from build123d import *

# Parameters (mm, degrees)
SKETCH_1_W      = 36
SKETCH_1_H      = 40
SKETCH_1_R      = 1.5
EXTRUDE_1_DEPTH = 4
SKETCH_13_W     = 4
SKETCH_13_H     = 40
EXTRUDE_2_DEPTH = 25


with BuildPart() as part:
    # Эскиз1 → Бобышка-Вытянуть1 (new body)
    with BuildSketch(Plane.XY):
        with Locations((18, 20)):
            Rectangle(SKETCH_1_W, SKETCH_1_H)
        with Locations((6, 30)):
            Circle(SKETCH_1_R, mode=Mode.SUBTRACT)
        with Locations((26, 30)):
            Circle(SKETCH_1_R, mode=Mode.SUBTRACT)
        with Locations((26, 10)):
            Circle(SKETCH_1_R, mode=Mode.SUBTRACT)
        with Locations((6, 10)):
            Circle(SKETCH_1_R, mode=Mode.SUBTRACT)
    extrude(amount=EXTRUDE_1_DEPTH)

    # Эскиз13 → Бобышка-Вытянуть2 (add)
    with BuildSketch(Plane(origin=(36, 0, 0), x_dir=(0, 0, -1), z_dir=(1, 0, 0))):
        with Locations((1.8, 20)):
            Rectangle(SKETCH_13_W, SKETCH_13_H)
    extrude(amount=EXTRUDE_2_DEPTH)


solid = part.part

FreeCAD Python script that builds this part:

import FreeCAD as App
import Part
import Sketcher
from FreeCAD import Vector
Q = App.Units.Quantity

doc = App.newDocument("Part")
body = doc.addObject("PartDesign::Body", "Body")

sketch1 = doc.addObject("Sketcher::SketchObject", "Sketch")
body.addObject(sketch1)
sketch1.AttachmentSupport = (doc.XY_Plane, [""])
sketch1.MapMode = "FlatFace"
sketch1.addGeometry([
    Part.LineSegment(Vector(0, 40, 0), Vector(0, 0, 0)),
    Part.LineSegment(Vector(0, 0, 0), Vector(36, 0, 0)),
    Part.LineSegment(Vector(36, 0, 0), Vector(36, 40, 0)),
    Part.LineSegment(Vector(36, 40, 0), Vector(0, 40, 0)),
    Part.Circle(Vector(6, 10, 0), Vector(0, 0, 1), 1.5),
    Part.Circle(Vector(26, 10, 0), Vector(0, 0, 1), 1.5),
    Part.Circle(Vector(6, 30, 0), Vector(0, 0, 1), 1.5),
    Part.Circle(Vector(26, 30, 0), Vector(0, 0, 1), 1.5),
], False)
sketch1.addConstraint([
    Sketcher.Constraint("Coincident", 0, 2, 1, 1),
    Sketcher.Constraint("Coincident", 1, 2, 2, 1),
    Sketcher.Constraint("Coincident", 2, 2, 3, 1),
    Sketcher.Constraint("Coincident", 3, 2, 0, 1),
    Sketcher.Constraint("Vertical", 0),
    Sketcher.Constraint("Horizontal", 1),
    Sketcher.Constraint("Vertical", 2),
    Sketcher.Constraint("Horizontal", 3),
    Sketcher.Constraint("Coincident", 0, 2, -1, 1),
    Sketcher.Constraint("Equal", 4, 5),
    Sketcher.Constraint("Equal", 5, 6),
    Sketcher.Constraint("Equal", 6, 7),
    Sketcher.Constraint("Horizontal", 4, 3, 5, 3),
    Sketcher.Constraint("Horizontal", 6, 3, 7, 3),
    Sketcher.Constraint("Vertical", 4, 3, 6, 3),
    Sketcher.Constraint("Vertical", 5, 3, 7, 3),
    Sketcher.Constraint("Diameter", 4, Q("3 mm")),
    Sketcher.Constraint("DistanceX", 1, 1, 1, 2, Q("36 mm")),
    Sketcher.Constraint("DistanceY", 0, 2, 0, 1, Q("40 mm")),
    Sketcher.Constraint("DistanceX", -1, 1, 4, 3, Q("6 mm")),
    Sketcher.Constraint("DistanceY", -1, 1, 4, 3, Q("10 mm")),
    Sketcher.Constraint("DistanceX", -1, 1, 5, 3, Q("26 mm")),
    Sketcher.Constraint("DistanceY", -1, 1, 6, 3, Q("30 mm")),
])
pad1 = doc.addObject("PartDesign::Pad", "Pad")
body.addObject(pad1)
pad1.Profile = sketch1
pad1.Length = 4

sketch2 = doc.addObject("Sketcher::SketchObject", "Sketch001")
body.addObject(sketch2)
sketch2.AttachmentSupport = (doc.YZ_Plane, [""])
sketch2.MapMode = "FlatFace"
sketch2.AttachmentOffset = App.Placement(Vector(0, 0, 36), App.Rotation())
sketch2.addGeometry([
    Part.LineSegment(Vector(40, 0.2, 0), Vector(0, 0.2, 0)),
    Part.LineSegment(Vector(0, 0.2, 0), Vector(0, -3.8, 0)),
    Part.LineSegment(Vector(0, -3.8, 0), Vector(40, -3.8, 0)),
    Part.LineSegment(Vector(40, -3.8, 0), Vector(40, 0.2, 0)),
], False)
sketch2.addConstraint([
    Sketcher.Constraint("Coincident", 0, 2, 1, 1),
    Sketcher.Constraint("Coincident", 1, 2, 2, 1),
    Sketcher.Constraint("Coincident", 2, 2, 3, 1),
    Sketcher.Constraint("Coincident", 3, 2, 0, 1),
    Sketcher.Constraint("Horizontal", 0),
    Sketcher.Constraint("Vertical", 1),
    Sketcher.Constraint("Horizontal", 2),
    Sketcher.Constraint("Vertical", 3),
    Sketcher.Constraint("PointOnObject", 0, 2, -2),
    Sketcher.Constraint("DistanceX", 0, 2, 0, 1, Q("40 mm")),
    Sketcher.Constraint("DistanceY", 1, 2, 1, 1, Q("4 mm")),
    Sketcher.Constraint("DistanceY", -1, 1, 0, 2, Q("0.2 mm")),
])
pad2 = doc.addObject("PartDesign::Pad", "Pad001")
body.addObject(pad2)
pad2.Profile = sketch2
pad2.Length = 25

doc.recompute()
